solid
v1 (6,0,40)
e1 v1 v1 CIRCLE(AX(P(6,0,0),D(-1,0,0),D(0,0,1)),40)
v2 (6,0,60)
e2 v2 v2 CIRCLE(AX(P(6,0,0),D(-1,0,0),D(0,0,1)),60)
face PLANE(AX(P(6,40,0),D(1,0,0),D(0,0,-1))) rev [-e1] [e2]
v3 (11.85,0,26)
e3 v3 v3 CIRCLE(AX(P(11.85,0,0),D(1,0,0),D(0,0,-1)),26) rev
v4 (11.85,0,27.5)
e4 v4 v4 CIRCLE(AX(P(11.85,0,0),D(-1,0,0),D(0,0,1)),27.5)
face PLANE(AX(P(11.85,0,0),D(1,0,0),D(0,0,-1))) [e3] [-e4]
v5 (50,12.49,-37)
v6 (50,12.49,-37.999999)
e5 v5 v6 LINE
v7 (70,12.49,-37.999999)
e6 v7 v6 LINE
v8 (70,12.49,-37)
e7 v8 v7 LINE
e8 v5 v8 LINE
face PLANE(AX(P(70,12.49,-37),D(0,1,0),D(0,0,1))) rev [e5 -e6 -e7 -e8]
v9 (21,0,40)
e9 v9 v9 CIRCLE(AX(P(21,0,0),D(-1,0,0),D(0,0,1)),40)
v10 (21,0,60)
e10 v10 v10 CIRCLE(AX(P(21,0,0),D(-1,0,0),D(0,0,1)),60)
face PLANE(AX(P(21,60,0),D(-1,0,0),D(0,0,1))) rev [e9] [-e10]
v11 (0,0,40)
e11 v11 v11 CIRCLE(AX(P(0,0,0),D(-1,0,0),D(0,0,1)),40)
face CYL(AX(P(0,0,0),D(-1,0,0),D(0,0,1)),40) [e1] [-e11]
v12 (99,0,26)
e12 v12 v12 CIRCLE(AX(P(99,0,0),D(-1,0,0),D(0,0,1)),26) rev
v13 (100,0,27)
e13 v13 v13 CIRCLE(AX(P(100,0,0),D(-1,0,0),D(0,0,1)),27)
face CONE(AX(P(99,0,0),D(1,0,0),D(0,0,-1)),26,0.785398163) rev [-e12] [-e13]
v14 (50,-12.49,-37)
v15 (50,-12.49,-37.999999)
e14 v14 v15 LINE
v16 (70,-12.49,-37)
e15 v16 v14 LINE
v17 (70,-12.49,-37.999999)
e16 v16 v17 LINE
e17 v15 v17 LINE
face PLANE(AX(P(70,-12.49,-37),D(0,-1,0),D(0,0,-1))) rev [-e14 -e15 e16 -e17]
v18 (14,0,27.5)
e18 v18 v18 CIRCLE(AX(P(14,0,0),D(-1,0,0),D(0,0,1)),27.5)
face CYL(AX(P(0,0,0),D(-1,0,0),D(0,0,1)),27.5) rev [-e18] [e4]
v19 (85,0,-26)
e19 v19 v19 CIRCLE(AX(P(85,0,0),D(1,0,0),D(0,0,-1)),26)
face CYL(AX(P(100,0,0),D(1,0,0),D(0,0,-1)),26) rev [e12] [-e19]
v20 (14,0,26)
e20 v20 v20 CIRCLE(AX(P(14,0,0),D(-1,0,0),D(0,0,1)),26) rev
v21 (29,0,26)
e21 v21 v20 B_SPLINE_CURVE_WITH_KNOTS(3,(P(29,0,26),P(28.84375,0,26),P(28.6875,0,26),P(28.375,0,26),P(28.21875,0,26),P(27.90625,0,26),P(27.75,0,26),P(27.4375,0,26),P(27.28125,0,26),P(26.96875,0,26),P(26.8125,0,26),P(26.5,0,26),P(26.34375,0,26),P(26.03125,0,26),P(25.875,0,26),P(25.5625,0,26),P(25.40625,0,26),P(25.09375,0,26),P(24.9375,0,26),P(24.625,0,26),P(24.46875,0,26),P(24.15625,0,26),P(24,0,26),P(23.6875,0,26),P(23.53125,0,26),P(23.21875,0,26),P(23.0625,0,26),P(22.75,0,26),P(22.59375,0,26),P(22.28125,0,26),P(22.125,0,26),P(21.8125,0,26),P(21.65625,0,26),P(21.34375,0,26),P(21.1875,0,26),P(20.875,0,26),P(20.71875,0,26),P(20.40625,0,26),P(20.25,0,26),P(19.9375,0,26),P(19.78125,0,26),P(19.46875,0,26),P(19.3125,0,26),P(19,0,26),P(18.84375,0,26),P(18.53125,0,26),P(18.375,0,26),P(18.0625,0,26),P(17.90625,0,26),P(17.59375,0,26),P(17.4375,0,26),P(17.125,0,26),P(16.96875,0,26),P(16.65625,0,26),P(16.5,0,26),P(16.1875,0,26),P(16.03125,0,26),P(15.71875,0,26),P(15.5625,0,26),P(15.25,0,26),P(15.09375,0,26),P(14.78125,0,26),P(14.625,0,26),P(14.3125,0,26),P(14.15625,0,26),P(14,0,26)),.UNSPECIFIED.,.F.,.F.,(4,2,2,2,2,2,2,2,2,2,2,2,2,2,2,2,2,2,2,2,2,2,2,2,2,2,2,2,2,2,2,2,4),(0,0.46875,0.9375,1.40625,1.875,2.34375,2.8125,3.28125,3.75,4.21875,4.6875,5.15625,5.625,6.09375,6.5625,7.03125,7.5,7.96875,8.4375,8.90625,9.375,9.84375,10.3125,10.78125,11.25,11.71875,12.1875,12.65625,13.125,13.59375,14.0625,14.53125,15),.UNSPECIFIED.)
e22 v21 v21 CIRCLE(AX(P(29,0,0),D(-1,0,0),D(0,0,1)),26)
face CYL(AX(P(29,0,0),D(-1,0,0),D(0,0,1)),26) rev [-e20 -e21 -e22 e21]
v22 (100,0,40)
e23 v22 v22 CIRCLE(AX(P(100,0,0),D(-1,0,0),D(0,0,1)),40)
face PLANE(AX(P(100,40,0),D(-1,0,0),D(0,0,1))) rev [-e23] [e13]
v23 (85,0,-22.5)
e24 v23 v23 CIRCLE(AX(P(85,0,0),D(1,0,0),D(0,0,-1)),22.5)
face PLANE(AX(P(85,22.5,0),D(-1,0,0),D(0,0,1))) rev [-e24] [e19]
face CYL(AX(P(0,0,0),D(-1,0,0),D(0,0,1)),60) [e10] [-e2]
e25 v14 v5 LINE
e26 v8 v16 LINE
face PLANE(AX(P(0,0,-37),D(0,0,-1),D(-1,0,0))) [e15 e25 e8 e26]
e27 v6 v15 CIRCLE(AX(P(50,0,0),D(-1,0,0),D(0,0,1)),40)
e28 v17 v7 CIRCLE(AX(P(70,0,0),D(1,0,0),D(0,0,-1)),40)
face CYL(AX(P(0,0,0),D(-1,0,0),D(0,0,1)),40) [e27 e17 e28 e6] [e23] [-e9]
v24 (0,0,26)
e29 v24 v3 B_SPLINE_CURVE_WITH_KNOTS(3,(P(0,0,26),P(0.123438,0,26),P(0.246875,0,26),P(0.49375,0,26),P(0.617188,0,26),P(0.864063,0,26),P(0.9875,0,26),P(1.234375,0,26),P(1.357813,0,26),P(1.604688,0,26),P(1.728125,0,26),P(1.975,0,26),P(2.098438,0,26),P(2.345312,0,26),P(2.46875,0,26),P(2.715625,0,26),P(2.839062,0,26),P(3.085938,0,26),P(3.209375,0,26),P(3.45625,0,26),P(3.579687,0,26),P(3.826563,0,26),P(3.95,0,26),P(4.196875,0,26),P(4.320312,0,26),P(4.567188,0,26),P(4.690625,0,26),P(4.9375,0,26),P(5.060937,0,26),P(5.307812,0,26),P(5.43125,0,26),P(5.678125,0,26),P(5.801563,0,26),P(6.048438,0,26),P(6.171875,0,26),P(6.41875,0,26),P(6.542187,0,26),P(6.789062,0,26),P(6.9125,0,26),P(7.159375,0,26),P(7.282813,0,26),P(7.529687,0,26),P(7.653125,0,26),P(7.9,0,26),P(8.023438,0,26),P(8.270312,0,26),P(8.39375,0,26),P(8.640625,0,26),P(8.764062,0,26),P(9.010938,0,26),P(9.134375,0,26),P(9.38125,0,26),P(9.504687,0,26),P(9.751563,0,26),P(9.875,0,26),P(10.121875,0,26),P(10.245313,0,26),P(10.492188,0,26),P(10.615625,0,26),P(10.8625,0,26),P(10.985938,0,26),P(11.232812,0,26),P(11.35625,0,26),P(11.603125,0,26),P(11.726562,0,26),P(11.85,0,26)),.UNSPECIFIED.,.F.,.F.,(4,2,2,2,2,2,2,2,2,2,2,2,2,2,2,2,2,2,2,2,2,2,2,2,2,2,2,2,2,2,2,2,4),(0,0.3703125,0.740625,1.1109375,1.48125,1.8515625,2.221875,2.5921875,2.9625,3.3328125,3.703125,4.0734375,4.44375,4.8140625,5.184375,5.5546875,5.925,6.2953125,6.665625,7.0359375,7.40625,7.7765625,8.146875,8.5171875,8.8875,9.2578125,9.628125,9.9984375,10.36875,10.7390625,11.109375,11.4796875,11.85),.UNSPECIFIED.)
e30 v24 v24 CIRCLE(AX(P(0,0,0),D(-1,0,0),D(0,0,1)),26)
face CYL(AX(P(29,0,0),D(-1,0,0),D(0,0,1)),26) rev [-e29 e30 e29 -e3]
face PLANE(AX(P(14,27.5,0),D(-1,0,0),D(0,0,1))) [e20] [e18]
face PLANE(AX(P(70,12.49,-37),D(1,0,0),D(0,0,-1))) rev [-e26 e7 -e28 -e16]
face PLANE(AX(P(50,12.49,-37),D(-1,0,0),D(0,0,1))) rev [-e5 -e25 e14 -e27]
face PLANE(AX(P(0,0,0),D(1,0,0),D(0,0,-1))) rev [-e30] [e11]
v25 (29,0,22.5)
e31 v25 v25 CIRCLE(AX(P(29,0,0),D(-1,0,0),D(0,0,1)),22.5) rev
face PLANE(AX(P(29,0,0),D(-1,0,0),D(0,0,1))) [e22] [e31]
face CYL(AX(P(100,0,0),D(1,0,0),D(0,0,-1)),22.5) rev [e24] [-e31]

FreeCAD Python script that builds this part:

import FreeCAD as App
import Part
import Sketcher
from FreeCAD import Vector
Q = App.Units.Quantity


def edges_at(feature, points):
    """Names of the edges that pass closest to the given points."""
    edges = feature.Shape.Edges
    near = lambda p: min(range(len(edges)), key=lambda i: edges[i].distToShape(Part.Vertex(*p))[0])
    return sorted({f"Edge{near(p) + 1}" for p in points})


def add_polygon(sketch, points):
    """Adds a closed chain of lines whose ends are joined by coincident constraints."""
    first, n = sketch.GeometryCount, len(points)
    for a, b in zip(points, points[1:] + points[:1]):
        sketch.addGeometry(Part.LineSegment(App.Vector(*a, 0), App.Vector(*b, 0)), False)
    for i in range(n):
        sketch.addConstraint(Sketcher.Constraint("Coincident", first + i, 2, first + (i + 1) % n, 1))

doc = App.newDocument("Part")
body = doc.addObject("PartDesign::Body", "Body")

# Sketch on XY plane
sketch1 = body.newObject("Sketcher::SketchObject", "Sketch")
sketch1.AttachmentSupport = (doc.getObject("XY_Plane"), [""])
sketch1.MapMode = "FlatFace"
add_polygon(sketch1, [(0, 40), (0, 0), (100, 0), (100, 40), (21, 40), (21, 60), (6, 60), (6, 40)])  # lines 0-7
sketch1.addConstraint([
    Sketcher.Constraint("Vertical", 0),
    Sketcher.Constraint("Horizontal", 1),
    Sketcher.Constraint("Vertical", 2),
    Sketcher.Constraint("Horizontal", 3),
    Sketcher.Constraint("Vertical", 4),
    Sketcher.Constraint("Horizontal", 5),
    Sketcher.Constraint("Vertical", 6),
    Sketcher.Constraint("Horizontal", 7),
    Sketcher.Constraint("Coincident", 0, 2, -1, 1),
    Sketcher.Constraint("Horizontal", 3, 2, 6, 2),
    Sketcher.Constraint("DistanceX", 1, 1, 1, 2, Q("100 mm")),
    Sketcher.Constraint("DistanceX", 3, 2, 3, 1, Q("79 mm")),
    Sketcher.Constraint("DistanceX", 5, 2, 5, 1, Q("15 mm")),
    Sketcher.Constraint("DistanceY", 0, 2, 0, 1, Q("40 mm")),
    Sketcher.Constraint("DistanceY", 4, 1, 4, 2, Q("20 mm")),
])
revolution = body.newObject("PartDesign::Revolution", "Revolution")
revolution.Profile = sketch1
revolution.ReferenceAxis = (sketch1, ["H_Axis"])
revolution.Angle = 360

# Sketch on XY plane
sketch2 = body.newObject("Sketcher::SketchObject", "Sketch001")
sketch2.AttachmentSupport = (doc.getObject("XY_Plane"), [""])
sketch2.MapMode = "FlatFace"
sketch2.AttachmentOffset = App.Placement(Vector(0, 0, -40), App.Rotation())
add_polygon(sketch2, [(70, 12), (70, -12), (50, -12), (50, 12)])  # lines 0-3
sketch2.addConstraint([
    Sketcher.Constraint("Vertical", 0),
    Sketcher.Constraint("Horizontal", 1),
    Sketcher.Constraint("Vertical", 2),
    Sketcher.Constraint("Horizontal", 3),
    Sketcher.Constraint("DistanceX", 1, 2, 1, 1, Q("20 mm")),
    Sketcher.Constraint("DistanceX", -1, 1, 0, 2, Q("70 mm")),
    Sketcher.Constraint("DistanceY", 0, 2, 0, 1, Q("24.98 mm")),
    Sketcher.Constraint("DistanceY", 0, 2, -1, 1, Q("12.49 mm")),
])
pocket1 = body.newObject("PartDesign::Pocket", "Pocket")
pocket1.Profile = sketch2
pocket1.Length = 3
pocket1.Reversed = True

# Sketch on YZ plane
sketch3 = body.newObject("Sketcher::SketchObject", "Sketch002")
sketch3.AttachmentSupport = (doc.getObject("YZ_Plane"), [""])
sketch3.MapMode = "FlatFace"
sketch3.AttachmentOffset = App.Placement(Vector(0, 0, 100), App.Rotation())
sketch3.addGeometry(Part.Circle(Vector(0, 0, 0), Vector(0, 0, 1), 22), False)
sketch3.addConstraint([
    Sketcher.Constraint("Coincident", 0, 3, -1, 1),
    Sketcher.Constraint("Diameter", 0, Q("45 mm")),
])
doc.recompute()
hole = body.newObject("PartDesign::Hole", "Hole")
hole.Profile = sketch3
hole.ThreadType = "None"
hole.Diameter = 45
hole.DepthType = "ThroughAll"
hole.HoleCutType = "Counterbore"
hole.HoleCutDiameter = 52
hole.HoleCutDepth = 15
doc.recompute()

chamfer = body.newObject("PartDesign::Chamfer", "Chamfer")
chamfer.Base = (hole, edges_at(hole, [(100, 0, 26)]))
chamfer.Size = 1

# Sketch on YZ plane
sketch4 = body.newObject("Sketcher::SketchObject", "Sketch003")
sketch4.AttachmentSupport = (doc.getObject("YZ_Plane"), [""])
sketch4.MapMode = "FlatFace"
sketch4.AttachmentOffset = App.Placement(Vector(0, 0, 29), App.Rotation())
sketch4.addGeometry(Part.Circle(Vector(0, 0, 0), Vector(0, 0, 1), 26), False)
sketch4.addConstraint([
    Sketcher.Constraint("Coincident", 0, 3, -1, 1),
    Sketcher.Constraint("Diameter", 0, Q("52 mm")),
])
pocket2 = body.newObject("PartDesign::Pocket", "Pocket001")
pocket2.Profile = sketch4
pocket2.Length = 29

# Sketch on XY plane
sketch5 = body.newObject("Sketcher::SketchObject", "Sketch004")
sketch5.AttachmentSupport = (doc.getObject("XY_Plane"), [""])
sketch5.MapMode = "FlatFace"
add_polygon(sketch5, [(11.8, 27.5), (11.8, 0), (14, 0), (14, 27.5)])  # lines 0-3
sketch5.addConstraint([
    Sketcher.Constraint("Vertical", 0),
    Sketcher.Constraint("Horizontal", 1),
    Sketcher.Constraint("Vertical", 2),
    Sketcher.Constraint("Horizontal", 3),
    Sketcher.Constraint("PointOnObject", 0, 2, -1),
    Sketcher.Constraint("DistanceY", 0, 2, 0, 1, Q("27.5 mm")),
    Sketcher.Constraint("DistanceX", -1, 1, 1, 2, Q("14 mm")),
    Sketcher.Constraint("DistanceX", 1, 1, 1, 2, Q("2.15 mm")),
])
groove = body.newObject("PartDesign::Groove", "Groove")
groove.Profile = sketch5
groove.ReferenceAxis = (sketch5, ["H_Axis"])
groove.Angle = 360

doc.recompute()
